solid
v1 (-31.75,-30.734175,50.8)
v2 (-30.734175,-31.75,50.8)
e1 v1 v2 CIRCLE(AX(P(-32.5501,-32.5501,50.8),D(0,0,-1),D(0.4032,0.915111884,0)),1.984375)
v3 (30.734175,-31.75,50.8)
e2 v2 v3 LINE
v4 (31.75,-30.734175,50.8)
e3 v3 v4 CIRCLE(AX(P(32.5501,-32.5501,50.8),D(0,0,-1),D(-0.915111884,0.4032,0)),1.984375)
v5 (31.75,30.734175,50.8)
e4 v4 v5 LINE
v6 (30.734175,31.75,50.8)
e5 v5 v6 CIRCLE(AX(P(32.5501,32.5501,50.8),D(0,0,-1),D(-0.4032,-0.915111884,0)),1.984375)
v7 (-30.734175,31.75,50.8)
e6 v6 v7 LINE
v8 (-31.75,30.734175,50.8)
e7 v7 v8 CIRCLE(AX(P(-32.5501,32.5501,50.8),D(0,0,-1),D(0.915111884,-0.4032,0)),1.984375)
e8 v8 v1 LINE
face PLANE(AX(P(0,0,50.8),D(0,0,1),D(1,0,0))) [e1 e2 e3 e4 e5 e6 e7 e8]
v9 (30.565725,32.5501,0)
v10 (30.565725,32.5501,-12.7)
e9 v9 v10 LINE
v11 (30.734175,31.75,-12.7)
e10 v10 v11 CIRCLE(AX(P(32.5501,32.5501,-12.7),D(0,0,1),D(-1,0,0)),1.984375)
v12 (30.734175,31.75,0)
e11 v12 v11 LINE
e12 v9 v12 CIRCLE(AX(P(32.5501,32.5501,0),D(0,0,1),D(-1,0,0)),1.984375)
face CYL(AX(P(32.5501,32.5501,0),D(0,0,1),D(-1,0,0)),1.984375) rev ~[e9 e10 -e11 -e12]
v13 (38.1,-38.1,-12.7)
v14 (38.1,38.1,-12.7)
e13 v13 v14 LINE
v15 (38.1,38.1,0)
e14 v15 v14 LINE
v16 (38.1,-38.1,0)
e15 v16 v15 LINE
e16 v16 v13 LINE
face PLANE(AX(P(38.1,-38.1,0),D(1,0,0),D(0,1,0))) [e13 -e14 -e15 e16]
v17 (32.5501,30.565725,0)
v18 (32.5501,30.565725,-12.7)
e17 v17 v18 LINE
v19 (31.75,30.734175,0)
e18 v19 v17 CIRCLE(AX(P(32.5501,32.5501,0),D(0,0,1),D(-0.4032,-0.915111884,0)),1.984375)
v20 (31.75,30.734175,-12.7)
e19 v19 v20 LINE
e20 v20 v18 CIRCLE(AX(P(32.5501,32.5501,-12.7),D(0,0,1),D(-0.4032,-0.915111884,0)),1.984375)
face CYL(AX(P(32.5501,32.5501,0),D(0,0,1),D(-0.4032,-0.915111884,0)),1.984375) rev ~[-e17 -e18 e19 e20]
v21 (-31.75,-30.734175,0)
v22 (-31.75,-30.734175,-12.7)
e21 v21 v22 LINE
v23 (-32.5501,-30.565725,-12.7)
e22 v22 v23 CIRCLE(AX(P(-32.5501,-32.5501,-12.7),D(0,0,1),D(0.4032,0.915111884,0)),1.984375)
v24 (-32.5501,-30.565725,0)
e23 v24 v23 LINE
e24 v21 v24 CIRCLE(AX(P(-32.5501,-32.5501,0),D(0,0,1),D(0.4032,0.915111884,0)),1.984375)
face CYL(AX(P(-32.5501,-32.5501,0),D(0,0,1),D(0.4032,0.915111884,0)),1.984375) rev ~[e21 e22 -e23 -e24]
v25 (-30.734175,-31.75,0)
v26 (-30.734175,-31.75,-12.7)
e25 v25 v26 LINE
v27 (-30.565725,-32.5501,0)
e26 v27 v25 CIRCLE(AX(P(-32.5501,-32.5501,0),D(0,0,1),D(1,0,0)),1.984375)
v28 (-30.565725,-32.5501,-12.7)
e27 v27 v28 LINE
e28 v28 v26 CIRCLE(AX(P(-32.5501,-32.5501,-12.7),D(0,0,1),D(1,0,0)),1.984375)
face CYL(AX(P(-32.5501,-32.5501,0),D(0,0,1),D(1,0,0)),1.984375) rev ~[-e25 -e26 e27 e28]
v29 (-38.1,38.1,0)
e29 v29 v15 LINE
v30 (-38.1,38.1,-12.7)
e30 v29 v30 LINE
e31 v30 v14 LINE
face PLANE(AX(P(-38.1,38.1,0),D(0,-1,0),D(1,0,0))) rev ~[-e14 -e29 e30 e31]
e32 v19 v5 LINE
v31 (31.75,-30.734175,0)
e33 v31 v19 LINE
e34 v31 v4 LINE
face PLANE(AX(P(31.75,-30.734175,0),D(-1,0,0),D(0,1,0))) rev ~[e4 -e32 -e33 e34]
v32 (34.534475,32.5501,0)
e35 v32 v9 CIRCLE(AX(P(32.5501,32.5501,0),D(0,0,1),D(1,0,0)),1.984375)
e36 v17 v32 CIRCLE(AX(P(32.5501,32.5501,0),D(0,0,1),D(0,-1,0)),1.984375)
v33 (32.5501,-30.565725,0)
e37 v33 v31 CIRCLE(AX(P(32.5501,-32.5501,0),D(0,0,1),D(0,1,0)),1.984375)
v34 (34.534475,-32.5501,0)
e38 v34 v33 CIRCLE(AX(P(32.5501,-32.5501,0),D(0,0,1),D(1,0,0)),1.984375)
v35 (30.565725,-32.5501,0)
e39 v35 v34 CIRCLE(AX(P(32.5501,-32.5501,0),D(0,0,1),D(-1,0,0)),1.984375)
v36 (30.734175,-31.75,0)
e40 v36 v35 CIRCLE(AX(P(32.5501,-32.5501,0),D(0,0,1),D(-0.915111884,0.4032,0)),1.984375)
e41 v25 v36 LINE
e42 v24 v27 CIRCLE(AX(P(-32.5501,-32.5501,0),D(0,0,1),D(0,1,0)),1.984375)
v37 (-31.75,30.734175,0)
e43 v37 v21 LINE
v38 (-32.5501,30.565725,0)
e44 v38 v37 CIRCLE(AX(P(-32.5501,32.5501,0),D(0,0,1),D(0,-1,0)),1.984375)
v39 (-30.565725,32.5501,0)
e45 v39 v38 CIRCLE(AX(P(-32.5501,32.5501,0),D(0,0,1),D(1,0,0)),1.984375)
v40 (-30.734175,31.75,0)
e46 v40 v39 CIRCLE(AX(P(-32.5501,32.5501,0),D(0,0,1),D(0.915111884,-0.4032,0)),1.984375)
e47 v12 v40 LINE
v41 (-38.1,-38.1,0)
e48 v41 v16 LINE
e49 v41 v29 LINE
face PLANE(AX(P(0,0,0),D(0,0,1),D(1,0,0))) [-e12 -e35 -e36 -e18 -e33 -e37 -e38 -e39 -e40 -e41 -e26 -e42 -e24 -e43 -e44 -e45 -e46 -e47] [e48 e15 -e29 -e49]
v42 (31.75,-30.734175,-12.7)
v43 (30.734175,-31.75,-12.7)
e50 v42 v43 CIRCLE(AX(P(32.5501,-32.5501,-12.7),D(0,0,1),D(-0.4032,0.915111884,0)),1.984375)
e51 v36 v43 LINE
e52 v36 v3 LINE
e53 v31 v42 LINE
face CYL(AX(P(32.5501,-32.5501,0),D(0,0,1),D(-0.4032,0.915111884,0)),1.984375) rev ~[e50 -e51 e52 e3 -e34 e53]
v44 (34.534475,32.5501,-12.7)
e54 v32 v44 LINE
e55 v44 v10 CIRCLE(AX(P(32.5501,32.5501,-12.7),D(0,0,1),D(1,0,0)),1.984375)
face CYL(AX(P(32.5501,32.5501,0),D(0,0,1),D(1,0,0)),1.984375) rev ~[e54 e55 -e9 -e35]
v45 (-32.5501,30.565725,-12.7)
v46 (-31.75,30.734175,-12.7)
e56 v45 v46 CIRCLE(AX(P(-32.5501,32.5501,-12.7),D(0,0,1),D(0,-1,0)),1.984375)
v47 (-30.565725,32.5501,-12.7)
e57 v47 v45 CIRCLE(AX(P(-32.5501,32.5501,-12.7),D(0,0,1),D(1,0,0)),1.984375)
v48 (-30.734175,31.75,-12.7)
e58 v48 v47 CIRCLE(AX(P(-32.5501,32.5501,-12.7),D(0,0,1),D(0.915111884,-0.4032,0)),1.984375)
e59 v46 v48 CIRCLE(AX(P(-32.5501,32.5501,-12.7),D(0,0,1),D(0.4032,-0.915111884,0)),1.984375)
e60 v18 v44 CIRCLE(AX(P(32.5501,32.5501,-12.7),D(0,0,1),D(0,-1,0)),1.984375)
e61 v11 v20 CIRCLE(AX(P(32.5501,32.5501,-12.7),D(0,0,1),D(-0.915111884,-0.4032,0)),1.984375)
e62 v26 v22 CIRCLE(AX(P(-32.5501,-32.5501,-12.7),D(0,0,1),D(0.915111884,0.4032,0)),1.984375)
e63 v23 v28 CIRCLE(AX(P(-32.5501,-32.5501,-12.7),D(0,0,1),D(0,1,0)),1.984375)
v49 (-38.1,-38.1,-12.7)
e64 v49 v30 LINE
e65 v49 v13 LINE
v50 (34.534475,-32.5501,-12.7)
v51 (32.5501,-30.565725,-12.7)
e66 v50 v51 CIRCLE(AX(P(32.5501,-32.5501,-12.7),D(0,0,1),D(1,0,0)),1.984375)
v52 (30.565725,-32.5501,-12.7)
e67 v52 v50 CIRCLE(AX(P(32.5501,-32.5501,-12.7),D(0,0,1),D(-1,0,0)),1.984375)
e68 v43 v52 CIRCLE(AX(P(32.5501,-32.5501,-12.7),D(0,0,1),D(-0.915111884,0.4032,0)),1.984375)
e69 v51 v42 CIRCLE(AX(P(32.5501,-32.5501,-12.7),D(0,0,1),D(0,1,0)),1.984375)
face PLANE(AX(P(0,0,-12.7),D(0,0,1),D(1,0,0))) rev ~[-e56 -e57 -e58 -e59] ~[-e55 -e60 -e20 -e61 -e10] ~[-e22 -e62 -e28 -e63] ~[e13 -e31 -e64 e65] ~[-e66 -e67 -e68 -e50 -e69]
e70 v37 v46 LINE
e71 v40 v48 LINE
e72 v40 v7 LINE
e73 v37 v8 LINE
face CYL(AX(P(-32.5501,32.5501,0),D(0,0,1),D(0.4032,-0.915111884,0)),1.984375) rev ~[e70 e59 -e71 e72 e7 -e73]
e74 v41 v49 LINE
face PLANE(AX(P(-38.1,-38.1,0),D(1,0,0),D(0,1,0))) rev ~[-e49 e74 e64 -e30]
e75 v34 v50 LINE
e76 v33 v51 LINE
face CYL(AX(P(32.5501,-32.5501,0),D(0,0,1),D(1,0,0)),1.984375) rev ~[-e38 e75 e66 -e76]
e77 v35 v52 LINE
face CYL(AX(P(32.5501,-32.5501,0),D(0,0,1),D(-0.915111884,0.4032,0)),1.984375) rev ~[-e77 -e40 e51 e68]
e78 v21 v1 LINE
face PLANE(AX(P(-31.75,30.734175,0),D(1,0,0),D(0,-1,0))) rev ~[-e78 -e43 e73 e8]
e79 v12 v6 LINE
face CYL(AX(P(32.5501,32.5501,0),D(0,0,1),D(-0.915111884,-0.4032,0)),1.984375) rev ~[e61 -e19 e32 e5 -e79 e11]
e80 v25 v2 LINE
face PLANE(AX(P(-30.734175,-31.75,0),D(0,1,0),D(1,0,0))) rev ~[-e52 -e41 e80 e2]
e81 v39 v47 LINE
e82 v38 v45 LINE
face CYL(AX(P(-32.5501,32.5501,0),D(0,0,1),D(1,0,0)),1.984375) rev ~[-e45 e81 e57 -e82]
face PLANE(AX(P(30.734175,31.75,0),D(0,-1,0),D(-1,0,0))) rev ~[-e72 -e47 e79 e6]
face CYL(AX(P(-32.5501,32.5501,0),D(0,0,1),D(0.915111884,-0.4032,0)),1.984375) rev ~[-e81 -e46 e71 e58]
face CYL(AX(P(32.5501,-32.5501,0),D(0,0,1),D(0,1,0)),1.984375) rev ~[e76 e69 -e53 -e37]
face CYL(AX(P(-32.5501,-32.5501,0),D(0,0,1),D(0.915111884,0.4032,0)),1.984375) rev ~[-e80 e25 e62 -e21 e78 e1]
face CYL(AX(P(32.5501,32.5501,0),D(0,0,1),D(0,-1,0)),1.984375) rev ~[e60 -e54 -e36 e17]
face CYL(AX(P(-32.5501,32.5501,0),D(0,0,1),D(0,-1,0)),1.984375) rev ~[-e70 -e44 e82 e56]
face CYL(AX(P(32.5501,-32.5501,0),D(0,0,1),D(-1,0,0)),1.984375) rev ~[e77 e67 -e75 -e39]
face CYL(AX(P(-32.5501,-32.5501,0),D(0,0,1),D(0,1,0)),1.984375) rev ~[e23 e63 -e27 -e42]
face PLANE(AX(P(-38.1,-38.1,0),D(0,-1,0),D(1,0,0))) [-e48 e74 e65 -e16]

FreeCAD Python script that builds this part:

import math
import FreeCAD as App
import Part
import Sketcher

V = App.Vector
Q = App.Units.Quantity

doc = App.newDocument("Part")
body = doc.addObject("PartDesign::Body", "Body")

sketch1 = body.newObject("Sketcher::SketchObject", "Sketch")
sketch1.AttachmentSupport = (doc.getObject("XY_Plane"), [""])
sketch1.MapMode = "FlatFace"
sketch1.addGeometry([
    Part.LineSegment(V(-38, 38, 0), V(-38, -38, 0)),
    Part.LineSegment(V(-38, -38, 0), V(38, -38, 0)),
    Part.LineSegment(V(38, -38, 0), V(38, 38, 0)),
    Part.LineSegment(V(38, 38, 0), V(-38, 38, 0)),
], False)
sketch1.addConstraint([
    Sketcher.Constraint("Coincident", 0, 2, 1, 1),
    Sketcher.Constraint("Coincident", 1, 2, 2, 1),
    Sketcher.Constraint("Coincident", 2, 2, 3, 1),
    Sketcher.Constraint("Coincident", 3, 2, 0, 1),
    Sketcher.Constraint("Vertical", 0),
    Sketcher.Constraint("Horizontal", 1),
    Sketcher.Constraint("Vertical", 2),
    Sketcher.Constraint("Horizontal", 3),
    Sketcher.Constraint("Symmetric", 0, 2, 2, 2, -1, 1),
    Sketcher.Constraint("Equal", 3, 0),
    Sketcher.Constraint("DistanceX", 1, 1, 1, 2, Q("3 in")),
])
pad1 = body.newObject("PartDesign::Pad", "Pad")
pad1.Profile = sketch1
pad1.Length = Q("0.5 in")
pad1.Reversed = True

sketch2 = body.newObject("Sketcher::SketchObject", "Sketch001")
sketch2.AttachmentSupport = (doc.getObject("XY_Plane"), [""])
sketch2.MapMode = "FlatFace"
sketch2.addGeometry([
    Part.ArcOfCircle(Part.Circle(V(-32.6, -32.6, 0), V(0, 0, 1), 2), math.radians(24), math.radians(66)),
    Part.LineSegment(V(-30.7, -31.8, 0), V(30.7, -31.8, 0)),
    Part.ArcOfCircle(Part.Circle(V(32.6, -32.6, 0), V(0, 0, 1), 2), math.radians(114), math.radians(156)),
    Part.LineSegment(V(31.8, -30.7, 0), V(31.8, 30.7, 0)),
    Part.ArcOfCircle(Part.Circle(V(32.6, 32.6, 0), V(0, 0, 1), 2), math.radians(-156), math.radians(-114)),
    Part.LineSegment(V(30.7, 31.8, 0), V(-30.7, 31.8, 0)),
    Part.ArcOfCircle(Part.Circle(V(-32.6, 32.6, 0), V(0, 0, 1), 2), math.radians(-66), math.radians(-24)),
    Part.LineSegment(V(-31.8, 30.7, 0), V(-31.8, -30.7, 0)),
], False)
sketch2.addConstraint([
    Sketcher.Constraint("Coincident", 0, 1, 1, 1),
    Sketcher.Constraint("Coincident", 1, 2, 2, 2),
    Sketcher.Constraint("Coincident", 2, 1, 3, 1),
    Sketcher.Constraint("Coincident", 3, 2, 4, 2),
    Sketcher.Constraint("Coincident", 4, 1, 5, 1),
    Sketcher.Constraint("Coincident", 5, 2, 6, 2),
    Sketcher.Constraint("Coincident", 6, 1, 7, 1),
    Sketcher.Constraint("Coincident", 7, 2, 0, 2),
    Sketcher.Constraint("Horizontal", 1),
    Sketcher.Constraint("Vertical", 3),
    Sketcher.Constraint("Horizontal", 5),
    Sketcher.Constraint("Vertical", 7),
    Sketcher.Constraint("Equal", 0, 2),
    Sketcher.Constraint("Equal", 2, 4),
    Sketcher.Constraint("Equal", 4, 6),
    Sketcher.Constraint("Symmetric", 0, 3, 4, 3, -1, 1),
    Sketcher.Constraint("Symmetric", 2, 3, 6, 3, -1, 1),
    Sketcher.Constraint("Symmetric", 0, 3, 2, 3, -2),
    Sketcher.Constraint("Horizontal", 3, 2, 6, 1),
    Sketcher.Constraint("Vertical", 1, 2, 4, 1),
    Sketcher.Constraint("Equal", 5, 3),
    Sketcher.Constraint("Radius", 0, Q("0.078125 in")),
    Sketcher.Constraint("DistanceY", 1, 2, 4, 1, Q("2.5 in")),
    Sketcher.Constraint("DistanceX", -1, 1, 2, 1, Q("1.25 in")),
    Sketcher.Constraint("DistanceX", 0, 3, 2, 3, Q("2.563 in")),
])
pad2 = body.newObject("PartDesign::Pad", "Pad001")
pad2.Profile = sketch2
pad2.Length = Q("2 in")

sketch3 = body.newObject("Sketcher::SketchObject", "Sketch002")
sketch3.AttachmentSupport = (doc.getObject("XY_Plane"), [""])
sketch3.MapMode = "FlatFace"
sketch3.addGeometry([
    Part.ArcOfCircle(Part.Circle(V(-32.6, -32.6, 0), V(0, 0, 1), 2), math.radians(90), math.radians(360)),
    Part.ArcOfCircle(Part.Circle(V(-32.6, -32.6, 0), V(0, 0, 1), 2), math.radians(0), math.radians(24)),
    Part.ArcOfCircle(Part.Circle(V(-32.6, -32.6, 0), V(0, 0, 1), 2), math.radians(24), math.radians(66)),
    Part.ArcOfCircle(Part.Circle(V(-32.6, -32.6, 0), V(0, 0, 1), 2), math.radians(66), math.radians(90)),
    Part.ArcOfCircle(Part.Circle(V(32.6, -32.6, 0), V(0, 0, 1), 2), math.radians(180), math.radians(360)),
    Part.ArcOfCircle(Part.Circle(V(32.6, -32.6, 0), V(0, 0, 1), 2), math.radians(0), math.radians(90)),
    Part.ArcOfCircle(Part.Circle(V(32.6, -32.6, 0), V(0, 0, 1), 2), math.radians(90), math.radians(114)),
    Part.ArcOfCircle(Part.Circle(V(32.6, -32.6, 0), V(0, 0, 1), 2), math.radians(114), math.radians(156)),
    Part.ArcOfCircle(Part.Circle(V(32.6, -32.6, 0), V(0, 0, 1), 2), math.radians(156), math.radians(180)),
    Part.ArcOfCircle(Part.Circle(V(32.6, 32.6, 0), V(0, 0, 1), 2), math.radians(-156), math.radians(-114)),
    Part.ArcOfCircle(Part.Circle(V(32.6, 32.6, 0), V(0, 0, 1), 2), math.radians(-114), math.radians(-90)),
    Part.ArcOfCircle(Part.Circle(V(32.6, 32.6, 0), V(0, 0, 1), 2), math.radians(-90), math.radians(0)),
    Part.ArcOfCircle(Part.Circle(V(32.6, 32.6, 0), V(0, 0, 1), 2), math.radians(0), math.radians(180)),
    Part.ArcOfCircle(Part.Circle(V(32.6, 32.6, 0), V(0, 0, 1), 2), math.radians(180), math.radians(204)),
    Part.ArcOfCircle(Part.Circle(V(-32.6, 32.6, 0), V(0, 0, 1), 2), math.radians(0), math.radians(270)),
    Part.ArcOfCircle(Part.Circle(V(-32.6, 32.6, 0), V(0, 0, 1), 2), math.radians(-90), math.radians(-66)),
    Part.ArcOfCircle(Part.Circle(V(-32.6, 32.6, 0), V(0, 0, 1), 2), math.radians(-66), math.radians(-24)),
    Part.ArcOfCircle(Part.Circle(V(-32.6, 32.6, 0), V(0, 0, 1), 2), math.radians(-24), math.radians(0)),
], False)
sketch3.addConstraint([
    Sketcher.Constraint("Tangent", 0, 2, 1, 1),
    Sketcher.Constraint("Tangent", 1, 2, 2, 1),
    Sketcher.Constraint("Tangent", 2, 2, 3, 1),
    Sketcher.Constraint("Tangent", 3, 2, 0, 1),
    Sketcher.Constraint("Tangent", 4, 2, 5, 1),
    Sketcher.Constraint("Tangent", 5, 2, 6, 1),
    Sketcher.Constraint("Tangent", 6, 2, 7, 1),
    Sketcher.Constraint("Tangent", 7, 2, 8, 1),
    Sketcher.Constraint("Tangent", 8, 2, 4, 1),
    Sketcher.Constraint("Tangent", 9, 2, 10, 1),
    Sketcher.Constraint("Tangent", 10, 2, 11, 1),
    Sketcher.Constraint("Tangent", 11, 2, 12, 1),
    Sketcher.Constraint("Tangent", 12, 2, 13, 1),
    Sketcher.Constraint("Tangent", 13, 2, 9, 1),
    Sketcher.Constraint("Tangent", 14, 2, 15, 1),
    Sketcher.Constraint("Tangent", 15, 2, 16, 1),
    Sketcher.Constraint("Tangent", 16, 2, 17, 1),
    Sketcher.Constraint("Tangent", 17, 2, 14, 1),
    Sketcher.Constraint("Coincident", 6, 3, 4, 3),
    Sketcher.Constraint("Coincident", 11, 3, 9, 3),
    Sketcher.Constraint("Equal", 0, 1),
    Sketcher.Constraint("Equal", 3, 4),
    Sketcher.Constraint("Equal", 8, 9),
    Sketcher.Constraint("Equal", 13, 14),
    Sketcher.Constraint("Equal", 14, 15),
    Sketcher.Constraint("Symmetric", 0, 3, 9, 3, -1, 1),
    Sketcher.Constraint("Symmetric", 4, 3, 14, 3, -1, 1),
    Sketcher.Constraint("Symmetric", 0, 3, 4, 3, -2),
    Sketcher.Constraint("Horizontal", 8, 3, 0, 2),
    Sketcher.Constraint("Horizontal", 0, 2, 4, 2),
    Sketcher.Constraint("Horizontal", 2, 2, 6, 2),
    Sketcher.Constraint("Horizontal", 1, 2, 7, 2),
    Sketcher.Constraint("Horizontal", 4, 2, 8, 2),
    Sketcher.Constraint("Horizontal", 17, 3, 11, 2),
    Sketcher.Constraint("Horizontal", 11, 2, 12, 2),
    Sketcher.Constraint("Horizontal", 9, 2, 15, 2),
    Sketcher.Constraint("Horizontal", 13, 2, 16, 2),
    Sketcher.Constraint("Horizontal", 12, 2, 17, 2),
    Sketcher.Constraint("Vertical", 17, 3, 3, 2),
    Sketcher.Constraint("Vertical", 13, 3, 5, 2),
    Sketcher.Constraint("Vertical", 6, 2, 9, 2),
    Sketcher.Constraint("Vertical", 5, 2, 10, 2),
    Sketcher.Constraint("Vertical", 7, 2, 13, 2),
    Sketcher.Constraint("Vertical", 3, 2, 14, 2),
    Sketcher.Constraint("Radius", 0, Q("0.078125 in")),
    Sketcher.Constraint("DistanceY", 1, 2, -1, 1, Q("1.25 in")),
    Sketcher.Constraint("DistanceX", 2, 2, -1, 1, Q("1.25 in")),
    Sketcher.Constraint("DistanceX", 0, 3, 4, 3, Q("2.563 in")),
    Sketcher.Constraint("DistanceY", 4, 3, 9, 3, Q("2.563 in")),
])
pocket1 = body.newObject("PartDesign::Pocket", "Pocket")
pocket1.Profile = sketch3
pocket1.Type = "ThroughAll"

doc.recompute()
